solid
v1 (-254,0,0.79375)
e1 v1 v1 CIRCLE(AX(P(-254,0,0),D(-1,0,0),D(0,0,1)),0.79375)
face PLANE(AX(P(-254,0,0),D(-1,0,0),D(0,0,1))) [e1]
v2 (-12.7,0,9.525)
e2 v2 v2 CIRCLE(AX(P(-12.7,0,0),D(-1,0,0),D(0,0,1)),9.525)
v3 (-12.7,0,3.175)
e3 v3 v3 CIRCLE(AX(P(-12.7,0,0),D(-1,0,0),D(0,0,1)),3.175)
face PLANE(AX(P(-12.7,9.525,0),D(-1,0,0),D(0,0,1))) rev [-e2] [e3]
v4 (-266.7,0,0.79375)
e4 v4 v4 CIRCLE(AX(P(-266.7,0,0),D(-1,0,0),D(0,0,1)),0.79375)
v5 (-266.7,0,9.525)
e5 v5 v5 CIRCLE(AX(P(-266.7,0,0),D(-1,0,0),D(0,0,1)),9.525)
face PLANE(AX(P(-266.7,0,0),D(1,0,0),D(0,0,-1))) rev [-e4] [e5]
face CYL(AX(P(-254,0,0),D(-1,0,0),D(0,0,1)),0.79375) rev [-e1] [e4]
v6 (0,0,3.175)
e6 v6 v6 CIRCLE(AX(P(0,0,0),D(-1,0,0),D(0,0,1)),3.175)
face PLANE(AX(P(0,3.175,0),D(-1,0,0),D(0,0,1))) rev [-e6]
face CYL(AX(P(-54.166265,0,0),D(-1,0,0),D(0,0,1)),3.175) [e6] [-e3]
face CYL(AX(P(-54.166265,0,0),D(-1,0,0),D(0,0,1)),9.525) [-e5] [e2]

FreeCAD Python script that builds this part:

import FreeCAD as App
import Part
import Sketcher
from FreeCAD import Vector
Q = App.Units.Quantity


def add_polygon(sketch, points):
    """Adds a closed chain of lines whose ends are joined by coincident constraints."""
    first, n = sketch.GeometryCount, len(points)
    for a, b in zip(points, points[1:] + points[:1]):
        sketch.addGeometry(Part.LineSegment(App.Vector(*a, 0), App.Vector(*b, 0)), False)
    for i in range(n):
        sketch.addConstraint(Sketcher.Constraint("Coincident", first + i, 2, first + (i + 1) % n, 1))

doc = App.newDocument("Part")
params = doc.addObject("Spreadsheet::Sheet", "Params")
for row, (alias, value) in enumerate([
    ("sketch1_width", "10 in"),
    ("sketch1_width2", "10.5 in"),
    ("sketch1_height", "0.25 in"),
    ("sketch1_height2", "0.375 in"),
    ("revolution_angle", "360 deg"),
    ("sketch2_diameter", "0.0625 in"),
    ("pocket1_length", "0.5 in"),
], start=1):
    params.set(f"A{row}", alias)
    params.set(f"B{row}", "=" + value)
    params.setAlias(f"B{row}", alias)

body = doc.addObject("PartDesign::Body", "Body")

# Sketch on XY plane
sketch1 = doc.addObject("Sketcher::SketchObject", "Sketch")
body.addObject(sketch1)
sketch1.AttachmentSupport = (doc.XY_Plane, [""])
sketch1.MapMode = "FlatFace"
add_polygon(sketch1, [(-266.7, 9.5), (-266.7, 0), (0, 0), (0, 3.2), (-12.7, 3.2), (-12.7, 9.5)])  # lines 0-5
sketch1.addConstraint([
    Sketcher.Constraint("Vertical", 0),
    Sketcher.Constraint("Horizontal", 1),
    Sketcher.Constraint("Vertical", 2),
    Sketcher.Constraint("Horizontal", 3),
    Sketcher.Constraint("Vertical", 4),
    Sketcher.Constraint("Horizontal", 5),
    Sketcher.Constraint("Coincident", 1, 2, -1, 1),
    Sketcher.Constraint("DistanceX", 5, 2, 5, 1, Q("10 in")),
    Sketcher.Constraint("DistanceX", 1, 1, 1, 2, Q("10.5 in")),
    Sketcher.Constraint("DistanceY", 4, 1, 4, 2, Q("0.25 in")),
    Sketcher.Constraint("DistanceY", 0, 2, 0, 1, Q("0.375 in")),
])
sketch1.setExpression("Constraints[13]", "Params.sketch1_width")
sketch1.setExpression("Constraints[14]", "Params.sketch1_width2")
sketch1.setExpression("Constraints[15]", "Params.sketch1_height")
sketch1.setExpression("Constraints[16]", "Params.sketch1_height2")
revolution = doc.addObject("PartDesign::Revolution", "Revolution")
body.addObject(revolution)
revolution.Profile = sketch1
revolution.ReferenceAxis = (sketch1, ["H_Axis"])
revolution.setExpression("Angle", "Params.revolution_angle")

# Sketch on YZ plane
sketch2 = doc.addObject("Sketcher::SketchObject", "Sketch001")
body.addObject(sketch2)
sketch2.AttachmentSupport = (doc.YZ_Plane, [""])
sketch2.MapMode = "FlatFace"
sketch2.AttachmentOffset = App.Placement(Vector(0, 0, -10.5 * 25.4), App.Rotation())
sketch2.addGeometry(Part.Circle(Vector(0, 0, 0), Vector(0, 0, 1), 0.8), False)
sketch2.addConstraint([
    Sketcher.Constraint("Coincident", 0, 3, -1, 1),
    Sketcher.Constraint("Diameter", 0, Q("0.0625 in")),
])
sketch2.setExpression("Constraints[1]", "Params.sketch2_diameter")
pocket1 = doc.addObject("PartDesign::Pocket", "Pocket")
body.addObject(pocket1)
pocket1.Profile = sketch2
pocket1.setExpression("Length", "Params.pocket1_length")
pocket1.Reversed = True

doc.recompute()
